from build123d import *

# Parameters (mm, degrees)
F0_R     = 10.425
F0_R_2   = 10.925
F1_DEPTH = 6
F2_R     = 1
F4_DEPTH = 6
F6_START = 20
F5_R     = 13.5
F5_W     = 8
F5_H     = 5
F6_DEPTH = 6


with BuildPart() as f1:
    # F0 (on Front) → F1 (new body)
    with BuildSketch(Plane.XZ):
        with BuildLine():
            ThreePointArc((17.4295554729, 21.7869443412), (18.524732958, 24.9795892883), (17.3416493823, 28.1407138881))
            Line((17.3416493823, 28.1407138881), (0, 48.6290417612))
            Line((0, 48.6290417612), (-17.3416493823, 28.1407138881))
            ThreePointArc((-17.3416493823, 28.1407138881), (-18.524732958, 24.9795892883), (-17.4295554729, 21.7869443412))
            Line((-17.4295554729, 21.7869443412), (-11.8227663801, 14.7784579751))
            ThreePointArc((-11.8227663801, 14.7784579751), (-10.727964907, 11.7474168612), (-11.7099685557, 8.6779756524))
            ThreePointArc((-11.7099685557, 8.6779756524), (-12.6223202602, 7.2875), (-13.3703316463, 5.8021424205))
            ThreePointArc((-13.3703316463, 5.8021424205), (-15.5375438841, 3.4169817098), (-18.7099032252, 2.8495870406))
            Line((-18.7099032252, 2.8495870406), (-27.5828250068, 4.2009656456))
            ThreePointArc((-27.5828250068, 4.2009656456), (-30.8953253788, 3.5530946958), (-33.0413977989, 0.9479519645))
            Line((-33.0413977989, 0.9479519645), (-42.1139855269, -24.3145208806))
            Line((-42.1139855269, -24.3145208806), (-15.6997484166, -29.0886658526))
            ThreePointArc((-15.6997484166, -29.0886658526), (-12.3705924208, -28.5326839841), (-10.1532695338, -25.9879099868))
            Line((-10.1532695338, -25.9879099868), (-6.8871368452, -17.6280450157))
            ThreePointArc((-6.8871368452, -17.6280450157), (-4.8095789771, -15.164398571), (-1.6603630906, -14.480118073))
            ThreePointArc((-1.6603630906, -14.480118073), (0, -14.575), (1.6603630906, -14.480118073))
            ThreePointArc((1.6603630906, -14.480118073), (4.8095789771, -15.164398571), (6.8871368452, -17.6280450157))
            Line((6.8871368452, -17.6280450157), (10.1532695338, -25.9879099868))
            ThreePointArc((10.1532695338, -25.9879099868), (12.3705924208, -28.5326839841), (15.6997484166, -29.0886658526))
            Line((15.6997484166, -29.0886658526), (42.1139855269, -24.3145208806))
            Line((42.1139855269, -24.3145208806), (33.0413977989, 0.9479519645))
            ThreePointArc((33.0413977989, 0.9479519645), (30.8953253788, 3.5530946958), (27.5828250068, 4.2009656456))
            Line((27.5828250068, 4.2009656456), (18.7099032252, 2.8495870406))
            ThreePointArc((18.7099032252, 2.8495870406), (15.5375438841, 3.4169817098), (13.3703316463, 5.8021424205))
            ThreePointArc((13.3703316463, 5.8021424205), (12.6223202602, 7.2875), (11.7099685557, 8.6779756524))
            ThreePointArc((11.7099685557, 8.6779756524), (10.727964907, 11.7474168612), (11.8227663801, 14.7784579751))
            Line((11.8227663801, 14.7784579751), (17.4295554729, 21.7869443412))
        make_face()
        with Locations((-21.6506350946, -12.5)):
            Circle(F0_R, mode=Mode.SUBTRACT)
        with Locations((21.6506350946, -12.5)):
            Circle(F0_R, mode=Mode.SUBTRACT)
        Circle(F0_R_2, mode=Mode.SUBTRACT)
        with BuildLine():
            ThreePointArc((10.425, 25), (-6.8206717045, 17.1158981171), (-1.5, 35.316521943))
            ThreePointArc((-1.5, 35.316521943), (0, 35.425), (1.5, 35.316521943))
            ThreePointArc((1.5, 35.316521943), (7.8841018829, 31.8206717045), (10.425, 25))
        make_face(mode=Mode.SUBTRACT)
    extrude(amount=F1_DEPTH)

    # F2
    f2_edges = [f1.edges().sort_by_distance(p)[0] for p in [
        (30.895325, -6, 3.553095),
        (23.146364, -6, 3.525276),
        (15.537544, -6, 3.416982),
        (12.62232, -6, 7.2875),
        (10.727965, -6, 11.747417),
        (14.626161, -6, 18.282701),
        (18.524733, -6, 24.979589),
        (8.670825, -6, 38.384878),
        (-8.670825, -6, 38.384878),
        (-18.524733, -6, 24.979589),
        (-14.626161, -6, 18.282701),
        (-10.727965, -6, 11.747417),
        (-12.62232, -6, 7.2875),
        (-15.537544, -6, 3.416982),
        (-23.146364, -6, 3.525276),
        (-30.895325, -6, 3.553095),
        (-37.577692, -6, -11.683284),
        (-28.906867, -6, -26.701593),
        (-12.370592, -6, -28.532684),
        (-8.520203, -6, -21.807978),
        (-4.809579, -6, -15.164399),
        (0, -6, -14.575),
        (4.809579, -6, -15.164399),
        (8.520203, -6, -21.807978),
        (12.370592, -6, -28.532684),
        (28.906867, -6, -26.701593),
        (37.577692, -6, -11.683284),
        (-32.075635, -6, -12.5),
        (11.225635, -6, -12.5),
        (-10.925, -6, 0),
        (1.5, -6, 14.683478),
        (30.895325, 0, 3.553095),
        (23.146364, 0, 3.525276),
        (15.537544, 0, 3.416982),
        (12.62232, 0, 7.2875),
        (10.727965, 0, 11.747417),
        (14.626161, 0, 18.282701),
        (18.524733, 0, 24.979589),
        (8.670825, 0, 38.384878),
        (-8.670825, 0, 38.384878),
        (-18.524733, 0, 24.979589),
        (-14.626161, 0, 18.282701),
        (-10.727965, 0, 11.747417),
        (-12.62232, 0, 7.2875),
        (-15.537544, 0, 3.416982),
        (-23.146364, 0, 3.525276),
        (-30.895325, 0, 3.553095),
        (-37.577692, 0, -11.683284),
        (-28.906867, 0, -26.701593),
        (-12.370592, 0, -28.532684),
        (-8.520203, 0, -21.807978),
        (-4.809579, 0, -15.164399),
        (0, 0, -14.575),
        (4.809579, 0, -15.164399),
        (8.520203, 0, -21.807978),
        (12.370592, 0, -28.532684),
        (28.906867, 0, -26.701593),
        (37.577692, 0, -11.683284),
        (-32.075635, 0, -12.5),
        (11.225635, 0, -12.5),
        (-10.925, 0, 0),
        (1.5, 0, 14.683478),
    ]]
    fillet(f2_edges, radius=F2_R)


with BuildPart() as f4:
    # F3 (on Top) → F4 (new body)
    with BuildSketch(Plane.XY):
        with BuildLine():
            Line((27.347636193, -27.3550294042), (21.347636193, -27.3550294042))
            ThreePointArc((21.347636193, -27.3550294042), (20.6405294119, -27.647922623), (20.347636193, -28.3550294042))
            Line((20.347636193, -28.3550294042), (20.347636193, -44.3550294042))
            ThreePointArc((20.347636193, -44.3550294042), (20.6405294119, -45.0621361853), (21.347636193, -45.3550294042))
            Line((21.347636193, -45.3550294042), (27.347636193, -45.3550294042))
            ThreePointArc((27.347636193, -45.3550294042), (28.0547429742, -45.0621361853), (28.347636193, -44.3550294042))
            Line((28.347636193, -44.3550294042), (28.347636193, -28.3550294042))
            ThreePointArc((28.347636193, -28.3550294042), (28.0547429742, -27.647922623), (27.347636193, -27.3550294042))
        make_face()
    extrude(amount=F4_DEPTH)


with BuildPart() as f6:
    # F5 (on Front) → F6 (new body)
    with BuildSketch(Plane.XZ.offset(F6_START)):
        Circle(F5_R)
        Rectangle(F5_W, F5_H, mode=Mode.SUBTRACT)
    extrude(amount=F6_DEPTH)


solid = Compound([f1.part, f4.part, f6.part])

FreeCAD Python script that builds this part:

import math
import FreeCAD as App
import Part
import Sketcher
from FreeCAD import Vector


def edges_at(feature, points):
    """Names of the edges that pass closest to the given points."""
    edges = feature.Shape.Edges
    near = lambda p: min(range(len(edges)), key=lambda i: edges[i].distToShape(Part.Vertex(*p))[0])
    return sorted({f"Edge{near(p) + 1}" for p in points})

doc = App.newDocument("Part")
params = doc.addObject("Spreadsheet::Sheet", "Params")
for row, (alias, value) in enumerate([
    ("sketch1_radius", "5 mm"),
    ("sketch1_diameter", "20.85 mm"),
    ("sketch1_diameter2", "21.85 mm"),
    ("pad1_length", "6 mm"),
    ("fillet_radius", "1 mm"),
    ("sketch2_radius", "1 mm"),
    ("sketch2_width", "6 mm"),
    ("sketch2_height", "16 mm"),
    ("pad2_length", "6 mm"),
    ("sketch3_diameter", "27 mm"),
    ("sketch3_width", "8 mm"),
    ("sketch3_height", "5 mm"),
    ("pad3_length", "6 mm"),
], start=1):
    params.set(f"A{row}", alias)
    params.set(f"B{row}", "=" + value)
    params.setAlias(f"B{row}", alias)

body = doc.addObject("PartDesign::Body", "Body")

# Sketch on XZ plane
sketch1 = body.newObject("Sketcher::SketchObject", "Sketch")
sketch1.AttachmentSupport = (doc.getObject("XZ_Plane"), [""])
sketch1.MapMode = "FlatFace"
sketch1.addGeometry(Part.ArcOfCircle(Part.Circle(Vector(13.5, 24.9, 0), Vector(0, 0, 1), 5), math.radians(-39), math.radians(40)), False)
sketch1.addGeometry(Part.LineSegment(Vector(17.3, 28.1, 0), Vector(0, 48.6, 0)), False)
sketch1.addGeometry(Part.LineSegment(Vector(0, 48.6, 0), Vector(-17.3, 28.1, 0)), False)
sketch1.addGeometry(Part.ArcOfCircle(Part.Circle(Vector(-13.5, 24.9, 0), Vector(0, 0, 1), 5), math.radians(140), math.radians(219)), False)
sketch1.addGeometry(Part.LineSegment(Vector(-17.4, 21.8, 0), Vector(-11.8, 14.8, 0)), False)
sketch1.addGeometry(Part.ArcOfCircle(Part.Circle(Vector(-15.7, 11.7, 0), Vector(0, 0, 1), 5), math.radians(-37), math.radians(39)), False)
sketch1.addGeometry(Part.ArcOfCircle(Part.Circle(Vector(0, 0, 0), Vector(0, 0, 1), 14.6), math.radians(143.46), math.radians(156.54)), False)
sketch1.addGeometry(Part.ArcOfCircle(Part.Circle(Vector(-18, 7.8, 0), Vector(0, 0, 1), 5), math.radians(-99), math.radians(-23)), False)
sketch1.addGeometry(Part.LineSegment(Vector(-18.7, 2.8, 0), Vector(-27.6, 4.2, 0)), False)
sketch1.addGeometry(Part.ArcOfCircle(Part.Circle(Vector(-28.3, -0.7, 0), Vector(0, 0, 1), 5), math.radians(81), math.radians(160)), False)
sketch1.addGeometry(Part.LineSegment(Vector(-33, 0.9, 0), Vector(-42.1, -24.3, 0)), False)
sketch1.addGeometry(Part.LineSegment(Vector(-42.1, -24.3, 0), Vector(-15.7, -29.1, 0)), False)
sketch1.addGeometry(Part.ArcOfCircle(Part.Circle(Vector(-14.8, -24.2, 0), Vector(0, 0, 1), 5), math.radians(-100), math.radians(-21)), False)
sketch1.addGeometry(Part.LineSegment(Vector(-10.2, -26, 0), Vector(-6.9, -17.6, 0)), False)
sketch1.addGeometry(Part.ArcOfCircle(Part.Circle(Vector(-2.2, -19.4, 0), Vector(0, 0, 1), 5), math.radians(83), math.radians(159)), False)
sketch1.addGeometry(Part.ArcOfCircle(Part.Circle(Vector(0, 0, 0), Vector(0, 0, 1), 14.6), math.radians(-96.54), math.radians(-83.46)), False)
sketch1.addGeometry(Part.ArcOfCircle(Part.Circle(Vector(2.2, -19.4, 0), Vector(0, 0, 1), 5), math.radians(21), math.radians(97)), False)
sketch1.addGeometry(Part.LineSegment(Vector(6.9, -17.6, 0), Vector(10.2, -26, 0)), False)
sketch1.addGeometry(Part.ArcOfCircle(Part.Circle(Vector(14.8, -24.2, 0), Vector(0, 0, 1), 5), math.radians(-159), math.radians(-80)), False)
sketch1.addGeometry(Part.LineSegment(Vector(15.7, -29.1, 0), Vector(42.1, -24.3, 0)), False)
sketch1.addGeometry(Part.LineSegment(Vector(42.1, -24.3, 0), Vector(33, 0.9, 0)), False)
sketch1.addGeometry(Part.ArcOfCircle(Part.Circle(Vector(28.3, -0.7, 0), Vector(0, 0, 1), 5), math.radians(20), math.radians(99)), False)
sketch1.addGeometry(Part.LineSegment(Vector(27.6, 4.2, 0), Vector(18.7, 2.8, 0)), False)
sketch1.addGeometry(Part.ArcOfCircle(Part.Circle(Vector(18, 7.8, 0), Vector(0, 0, 1), 5), math.radians(-157), math.radians(-81)), False)
sketch1.addGeometry(Part.ArcOfCircle(Part.Circle(Vector(0, 0, 0), Vector(0, 0, 1), 14.6), math.radians(23.46), math.radians(36.54)), False)
sketch1.addGeometry(Part.ArcOfCircle(Part.Circle(Vector(15.7, 11.7, 0), Vector(0, 0, 1), 5), math.radians(141), math.radians(217)), False)
sketch1.addGeometry(Part.LineSegment(Vector(11.8, 14.8, 0), Vector(17.4, 21.8, 0)), False)
sketch1.addGeometry(Part.Circle(Vector(-21.7, -12.5, 0), Vector(0, 0, 1), 10.4), False)
sketch1.addGeometry(Part.Circle(Vector(21.7, -12.5, 0), Vector(0, 0, 1), 10.4), False)
sketch1.addGeometry(Part.Circle(Vector(0, 0, 0), Vector(0, 0, 1), 10.9), False)
sketch1.addGeometry(Part.ArcOfCircle(Part.Circle(Vector(0, 25, 0), Vector(0, 0, 1), 10.4), math.radians(0), math.radians(82)), False)
sketch1.addGeometry(Part.ArcOfCircle(Part.Circle(Vector(0, 25, 0), Vector(0, 0, 1), 10.4), math.radians(98), math.radians(360)), False)
sketch1.addGeometry(Part.ArcOfCircle(Part.Circle(Vector(0, 25, 0), Vector(0, 0, 1), 10.4), math.radians(81.73), math.radians(98.27)), False)
sketch1.addConstraint(Sketcher.Constraint("Tangent", 0, 2, 1, 1))
sketch1.addConstraint(Sketcher.Constraint("Coincident", 1, 2, 2, 1))
sketch1.addConstraint(Sketcher.Constraint("Tangent", 2, 2, 3, 1))
sketch1.addConstraint(Sketcher.Constraint("Tangent", 3, 2, 4, 1))
sketch1.addConstraint(Sketcher.Constraint("Tangent", 4, 2, 5, 2))
sketch1.addConstraint(Sketcher.Constraint("Tangent", 5, 1, 6, 1))
sketch1.addConstraint(Sketcher.Constraint("Tangent", 6, 2, 7, 2))
sketch1.addConstraint(Sketcher.Constraint("Tangent", 7, 1, 8, 1))
sketch1.addConstraint(Sketcher.Constraint("Tangent", 8, 2, 9, 1))
sketch1.addConstraint(Sketcher.Constraint("Tangent", 9, 2, 10, 1))
sketch1.addConstraint(Sketcher.Constraint("Coincident", 10, 2, 11, 1))
sketch1.addConstraint(Sketcher.Constraint("Tangent", 11, 2, 12, 1))
sketch1.addConstraint(Sketcher.Constraint("Tangent", 12, 2, 13, 1))
sketch1.addConstraint(Sketcher.Constraint("Tangent", 13, 2, 14, 2))
sketch1.addConstraint(Sketcher.Constraint("Tangent", 14, 1, 15, 1))
sketch1.addConstraint(Sketcher.Constraint("Tangent", 15, 2, 16, 2))
sketch1.addConstraint(Sketcher.Constraint("Tangent", 16, 1, 17, 1))
sketch1.addConstraint(Sketcher.Constraint("Tangent", 17, 2, 18, 1))
sketch1.addConstraint(Sketcher.Constraint("Tangent", 18, 2, 19, 1))
sketch1.addConstraint(Sketcher.Constraint("Coincident", 19, 2, 20, 1))
sketch1.addConstraint(Sketcher.Constraint("Tangent", 20, 2, 21, 1))
sketch1.addConstraint(Sketcher.Constraint("Tangent", 21, 2, 22, 1))
sketch1.addConstraint(Sketcher.Constraint("Tangent", 22, 2, 23, 2))
sketch1.addConstraint(Sketcher.Constraint("Tangent", 23, 1, 24, 1))
sketch1.addConstraint(Sketcher.Constraint("Tangent", 24, 2, 25, 2))
sketch1.addConstraint(Sketcher.Constraint("Tangent", 25, 1, 26, 1))
sketch1.addConstraint(Sketcher.Constraint("Tangent", 26, 2, 0, 1))
sketch1.addConstraint(Sketcher.Constraint("Tangent", 30, 1, 31, 2))
sketch1.addConstraint(Sketcher.Constraint("Tangent", 31, 1, 32, 2))
sketch1.addConstraint(Sketcher.Constraint("Tangent", 32, 1, 30, 2))
sketch1.addConstraint(Sketcher.Constraint("Coincident", 6, 3, -1, 1))
sketch1.addConstraint(Sketcher.Constraint("Coincident", 15, 3, -1, 1))
sketch1.addConstraint(Sketcher.Constraint("Coincident", 24, 3, -1, 1))
sketch1.addConstraint(Sketcher.Constraint("Coincident", 29, 3, -1, 1))
sketch1.addConstraint(Sketcher.Constraint("Equal", 0, 3))
sketch1.addConstraint(Sketcher.Constraint("Equal", 3, 5))
sketch1.addConstraint(Sketcher.Constraint("Equal", 5, 7))
sketch1.addConstraint(Sketcher.Constraint("Equal", 7, 9))
sketch1.addConstraint(Sketcher.Constraint("Equal", 9, 12))
sketch1.addConstraint(Sketcher.Constraint("Equal", 12, 14))
sketch1.addConstraint(Sketcher.Constraint("Equal", 6, 15))
sketch1.addConstraint(Sketcher.Constraint("Equal", 14, 16))
sketch1.addConstraint(Sketcher.Constraint("Equal", 16, 18))
sketch1.addConstraint(Sketcher.Constraint("Equal", 18, 21))
sketch1.addConstraint(Sketcher.Constraint("Equal", 21, 23))
sketch1.addConstraint(Sketcher.Constraint("Equal", 15, 24))
sketch1.addConstraint(Sketcher.Constraint("Equal", 23, 25))
sketch1.addConstraint(Sketcher.Constraint("Equal", 27, 28))
sketch1.addConstraint(Sketcher.Constraint("Equal", 28, 30))
sketch1.addConstraint(Sketcher.Constraint("Symmetric", 0, 3, 3, 3, -2))
sketch1.addConstraint(Sketcher.Constraint("Symmetric", 12, 3, 18, 3, -2))
sketch1.addConstraint(Sketcher.Constraint("Symmetric", 9, 3, 21, 3, -2))
sketch1.addConstraint(Sketcher.Constraint("Symmetric", 27, 3, 28, 3, -2))
sketch1.addConstraint(Sketcher.Constraint("Symmetric", 10, 2, 19, 2, -2))
sketch1.addConstraint(Sketcher.Constraint("Symmetric", 31, 1, 32, 1, -2))
sketch1.addConstraint(Sketcher.Constraint("PointOnObject", 1, 2, -2))
sketch1.addConstraint(Sketcher.Constraint("Horizontal", 14, 3, 16, 3))
sketch1.addConstraint(Sketcher.Constraint("Horizontal", 7, 3, 23, 3))
sketch1.addConstraint(Sketcher.Constraint("Horizontal", 5, 3, 25, 3))
sketch1.addConstraint(Sketcher.Constraint("Horizontal", 32, 3, 30, 1))
sketch1.addConstraint(Sketcher.Constraint("Equal", 4, 8))
sketch1.addConstraint(Sketcher.Constraint("Equal", 2, 10))
sketch1.addConstraint(Sketcher.Constraint("Equal", 10, 11))
sketch1.addConstraint(Sketcher.Constraint("Equal", 8, 13))
sketch1.addConstraint(Sketcher.Constraint("Radius", 0, 5.0))
sketch1.addConstraint(Sketcher.Constraint("Diameter", 27, 20.85))
sketch1.addConstraint(Sketcher.Constraint("Diameter", 29, 21.85))
sketch1.addConstraint(Sketcher.Constraint("DistanceY", -1, 1, 30, 3, 25.0))
sketch1.addConstraint(Sketcher.Constraint("Radius", 6, 14.575))
sketch1.addConstraint(Sketcher.Constraint("DistanceX", 31, 1, 32, 1, 3.0))
sketch1.addConstraint(Sketcher.Constraint("DistanceY", 27, 3, -1, 1, 12.5))
sketch1.addConstraint(Sketcher.Constraint("DistanceY", 7, 1, 7, 3, 4.942999))
sketch1.addConstraint(Sketcher.Constraint("DistanceX", 5, 3, 3, 3, 2.201899))
sketch1.addConstraint(Sketcher.Constraint("DistanceX", 12, 3, 18, 3, 29.620901))
sketch1.addConstraint(Sketcher.Constraint("DistanceX", 7, 3, 4, 2, 6.1343))
sketch1.addConstraint(Sketcher.Constraint("DistanceX", 13, 2, 15, 2, 8.5475))
sketch1.addConstraint(Sketcher.Constraint("Distance", 4, 8.975242))
sketch1.addConstraint(Sketcher.Constraint("DistanceX", -1, 1, 0, 3, 13.525211))
sketch1.addConstraint(Sketcher.Constraint("DistanceX", -1, 1, 0, 2, 17.341649))
sketch1.addConstraint(Sketcher.Constraint("DistanceX", 27, 3, 7, 3, 3.693569))
sketch1.setExpression("Constraints[64]", "Params.sketch1_radius")
sketch1.setExpression("Constraints[65]", "Params.sketch1_diameter")
sketch1.setExpression("Constraints[66]", "Params.sketch1_diameter2")
pad1 = body.newObject("PartDesign::Pad", "Pad")
pad1.Profile = sketch1
pad1.setExpression("Length", "Params.pad1_length")
doc.recompute()

fillet = body.newObject("PartDesign::Fillet", "Fillet")
fillet.Base = (pad1, edges_at(pad1, [
    (30.895, -6, 3.553),
    (23.146, -6, 3.525),
    (15.538, -6, 3.417),
    (12.622, -6, 7.287),
    (10.728, -6, 11.747),
    (14.626, -6, 18.283),
    (18.525, -6, 24.98),
    (8.671, -6, 38.385),
    (-8.671, -6, 38.385),
    (-18.525, -6, 24.98),
    (-14.626, -6, 18.283),
    (-10.728, -6, 11.747),
    (-12.622, -6, 7.287),
    (-15.538, -6, 3.417),
    (-23.146, -6, 3.525),
    (-30.895, -6, 3.553),
    (-37.578, -6, -11.683),
    (-28.907, -6, -26.702),
    (-12.371, -6, -28.533),
    (-8.52, -6, -21.808),
    (-4.81, -6, -15.164),
    (0, -6, -14.575),
    (4.81, -6, -15.164),
    (8.52, -6, -21.808),
    (12.371, -6, -28.533),
    (28.907, -6, -26.702),
    (37.578, -6, -11.683),
    (-32.076, -6, -12.5),
    (11.226, -6, -12.5),
    (-10.925, -6, 0),
    (-6.821, -6, 17.116),
    (30.895, 0, 3.553),
    (23.146, 0, 3.525),
    (15.538, 0, 3.417),
    (12.622, 0, 7.287),
    (10.728, 0, 11.747),
    (14.626, 0, 18.283),
    (18.525, 0, 24.98),
    (8.671, 0, 38.385),
    (-8.671, 0, 38.385),
    (-18.525, 0, 24.98),
    (-14.626, 0, 18.283),
    (-10.728, 0, 11.747),
    (-12.622, 0, 7.287),
    (-15.538, 0, 3.417),
    (-23.146, 0, 3.525),
    (-30.895, 0, 3.553),
    (-37.578, 0, -11.683),
    (-28.907, 0, -26.702),
    (-12.371, 0, -28.533),
    (-8.52, 0, -21.808),
    (-4.81, 0, -15.164),
    (0, 0, -14.575),
    (4.81, 0, -15.164),
    (8.52, 0, -21.808),
    (12.371, 0, -28.533),
    (28.907, 0, -26.702),
    (37.578, 0, -11.683),
    (-32.076, 0, -12.5),
    (11.226, 0, -12.5),
    (-10.925, 0, 0),
    (-6.821, 0, 17.116),
]))
fillet.setExpression("Radius", "Params.fillet_radius")
body2 = doc.addObject("PartDesign::Body", "Body001")

# Sketch on XY plane
sketch2 = body2.newObject("Sketcher::SketchObject", "Sketch001")
sketch2.AttachmentSupport = (doc.getObject("XY_Plane001"), [""])
sketch2.MapMode = "FlatFace"
sketch2.addGeometry(Part.LineSegment(Vector(27.3, -27.4, 0), Vector(21.3, -27.4, 0)), False)
sketch2.addGeometry(Part.ArcOfCircle(Part.Circle(Vector(21.3, -28.4, 0), Vector(0, 0, 1), 1), math.radians(90), math.radians(180)), False)
sketch2.addGeometry(Part.LineSegment(Vector(20.3, -28.4, 0), Vector(20.3, -44.4, 0)), False)
sketch2.addGeometry(Part.ArcOfCircle(Part.Circle(Vector(21.3, -44.4, 0), Vector(0, 0, 1), 1), math.radians(180), math.radians(270)), False)
sketch2.addGeometry(Part.LineSegment(Vector(21.3, -45.4, 0), Vector(27.3, -45.4, 0)), False)
sketch2.addGeometry(Part.ArcOfCircle(Part.Circle(Vector(27.3, -44.4, 0), Vector(0, 0, 1), 1), math.radians(-90), math.radians(0)), False)
sketch2.addGeometry(Part.LineSegment(Vector(28.3, -44.4, 0), Vector(28.3, -28.4, 0)), False)
sketch2.addGeometry(Part.ArcOfCircle(Part.Circle(Vector(27.3, -28.4, 0), Vector(0, 0, 1), 1), math.radians(0), math.radians(90)), False)
sketch2.addConstraint(Sketcher.Constraint("Tangent", 0, 2, 1, 1))
sketch2.addConstraint(Sketcher.Constraint("Tangent", 1, 2, 2, 1))
sketch2.addConstraint(Sketcher.Constraint("Tangent", 2, 2, 3, 1))
sketch2.addConstraint(Sketcher.Constraint("Tangent", 3, 2, 4, 1))
sketch2.addConstraint(Sketcher.Constraint("Tangent", 4, 2, 5, 1))
sketch2.addConstraint(Sketcher.Constraint("Tangent", 5, 2, 6, 1))
sketch2.addConstraint(Sketcher.Constraint("Tangent", 6, 2, 7, 1))
sketch2.addConstraint(Sketcher.Constraint("Tangent", 7, 2, 0, 1))
sketch2.addConstraint(Sketcher.Constraint("Horizontal", 0))
sketch2.addConstraint(Sketcher.Constraint("Vertical", 2))
sketch2.addConstraint(Sketcher.Constraint("Horizontal", 4))
sketch2.addConstraint(Sketcher.Constraint("Vertical", 6))
sketch2.addConstraint(Sketcher.Constraint("Equal", 1, 3))
sketch2.addConstraint(Sketcher.Constraint("Equal", 3, 5))
sketch2.addConstraint(Sketcher.Constraint("Equal", 5, 7))
sketch2.addConstraint(Sketcher.Constraint("Radius", 1, 1.0))
sketch2.addConstraint(Sketcher.Constraint("DistanceX", 0, 2, 0, 1, 6.0))
sketch2.addConstraint(Sketcher.Constraint("DistanceY", 2, 2, 2, 1, 16.0))
sketch2.addConstraint(Sketcher.Constraint("DistanceY", 1, 3, -1, 1, 28.355029))
sketch2.addConstraint(Sketcher.Constraint("DistanceX", -1, 1, 1, 3, 21.347636))
sketch2.setExpression("Constraints[15]", "Params.sketch2_radius")
sketch2.setExpression("Constraints[16]", "Params.sketch2_width")
sketch2.setExpression("Constraints[17]", "Params.sketch2_height")
pad2 = body2.newObject("PartDesign::Pad", "Pad001")
pad2.Profile = sketch2
pad2.setExpression("Length", "Params.pad2_length")
body3 = doc.addObject("PartDesign::Body", "Body002")

# Sketch on XZ plane
sketch3 = body3.newObject("Sketcher::SketchObject", "Sketch002")
sketch3.AttachmentSupport = (doc.getObject("XZ_Plane002"), [""])
sketch3.MapMode = "FlatFace"
sketch3.AttachmentOffset = App.Placement(Vector(0, 0, 20), App.Rotation())
sketch3.addGeometry(Part.Circle(Vector(0, 0, 0), Vector(0, 0, 1), 14), False)
sketch3.addGeometry(Part.LineSegment(Vector(4, -2, 0), Vector(-4, -2, 0)), False)
sketch3.addGeometry(Part.LineSegment(Vector(-4, -2, 0), Vector(-4, 2, 0)), False)
sketch3.addGeometry(Part.LineSegment(Vector(-4, 2, 0), Vector(4, 2, 0)), False)
sketch3.addGeometry(Part.LineSegment(Vector(4, 2, 0), Vector(4, -2, 0)), False)
sketch3.addConstraint(Sketcher.Constraint("Coincident", 1, 2, 2, 1))
sketch3.addConstraint(Sketcher.Constraint("Coincident", 2, 2, 3, 1))
sketch3.addConstraint(Sketcher.Constraint("Coincident", 3, 2, 4, 1))
sketch3.addConstraint(Sketcher.Constraint("Coincident", 4, 2, 1, 1))
sketch3.addConstraint(Sketcher.Constraint("Horizontal", 1))
sketch3.addConstraint(Sketcher.Constraint("Vertical", 2))
sketch3.addConstraint(Sketcher.Constraint("Horizontal", 3))
sketch3.addConstraint(Sketcher.Constraint("Vertical", 4))
sketch3.addConstraint(Sketcher.Constraint("Coincident", 0, 3, -1, 1))
sketch3.addConstraint(Sketcher.Constraint("Symmetric", 1, 2, 3, 2, -1, 1))
sketch3.addConstraint(Sketcher.Constraint("Diameter", 0, 27.0))
sketch3.addConstraint(Sketcher.Constraint("DistanceX", 1, 2, 1, 1, 8.0))
sketch3.addConstraint(Sketcher.Constraint("DistanceY", 2, 1, 2, 2, 5.0))
sketch3.setExpression("Constraints[10]", "Params.sketch3_diameter")
sketch3.setExpression("Constraints[11]", "Params.sketch3_width")
sketch3.setExpression("Constraints[12]", "Params.sketch3_height")
pad3 = body3.newObject("PartDesign::Pad", "Pad002")
pad3.Profile = sketch3
pad3.setExpression("Length", "Params.pad3_length")

doc.recompute()
